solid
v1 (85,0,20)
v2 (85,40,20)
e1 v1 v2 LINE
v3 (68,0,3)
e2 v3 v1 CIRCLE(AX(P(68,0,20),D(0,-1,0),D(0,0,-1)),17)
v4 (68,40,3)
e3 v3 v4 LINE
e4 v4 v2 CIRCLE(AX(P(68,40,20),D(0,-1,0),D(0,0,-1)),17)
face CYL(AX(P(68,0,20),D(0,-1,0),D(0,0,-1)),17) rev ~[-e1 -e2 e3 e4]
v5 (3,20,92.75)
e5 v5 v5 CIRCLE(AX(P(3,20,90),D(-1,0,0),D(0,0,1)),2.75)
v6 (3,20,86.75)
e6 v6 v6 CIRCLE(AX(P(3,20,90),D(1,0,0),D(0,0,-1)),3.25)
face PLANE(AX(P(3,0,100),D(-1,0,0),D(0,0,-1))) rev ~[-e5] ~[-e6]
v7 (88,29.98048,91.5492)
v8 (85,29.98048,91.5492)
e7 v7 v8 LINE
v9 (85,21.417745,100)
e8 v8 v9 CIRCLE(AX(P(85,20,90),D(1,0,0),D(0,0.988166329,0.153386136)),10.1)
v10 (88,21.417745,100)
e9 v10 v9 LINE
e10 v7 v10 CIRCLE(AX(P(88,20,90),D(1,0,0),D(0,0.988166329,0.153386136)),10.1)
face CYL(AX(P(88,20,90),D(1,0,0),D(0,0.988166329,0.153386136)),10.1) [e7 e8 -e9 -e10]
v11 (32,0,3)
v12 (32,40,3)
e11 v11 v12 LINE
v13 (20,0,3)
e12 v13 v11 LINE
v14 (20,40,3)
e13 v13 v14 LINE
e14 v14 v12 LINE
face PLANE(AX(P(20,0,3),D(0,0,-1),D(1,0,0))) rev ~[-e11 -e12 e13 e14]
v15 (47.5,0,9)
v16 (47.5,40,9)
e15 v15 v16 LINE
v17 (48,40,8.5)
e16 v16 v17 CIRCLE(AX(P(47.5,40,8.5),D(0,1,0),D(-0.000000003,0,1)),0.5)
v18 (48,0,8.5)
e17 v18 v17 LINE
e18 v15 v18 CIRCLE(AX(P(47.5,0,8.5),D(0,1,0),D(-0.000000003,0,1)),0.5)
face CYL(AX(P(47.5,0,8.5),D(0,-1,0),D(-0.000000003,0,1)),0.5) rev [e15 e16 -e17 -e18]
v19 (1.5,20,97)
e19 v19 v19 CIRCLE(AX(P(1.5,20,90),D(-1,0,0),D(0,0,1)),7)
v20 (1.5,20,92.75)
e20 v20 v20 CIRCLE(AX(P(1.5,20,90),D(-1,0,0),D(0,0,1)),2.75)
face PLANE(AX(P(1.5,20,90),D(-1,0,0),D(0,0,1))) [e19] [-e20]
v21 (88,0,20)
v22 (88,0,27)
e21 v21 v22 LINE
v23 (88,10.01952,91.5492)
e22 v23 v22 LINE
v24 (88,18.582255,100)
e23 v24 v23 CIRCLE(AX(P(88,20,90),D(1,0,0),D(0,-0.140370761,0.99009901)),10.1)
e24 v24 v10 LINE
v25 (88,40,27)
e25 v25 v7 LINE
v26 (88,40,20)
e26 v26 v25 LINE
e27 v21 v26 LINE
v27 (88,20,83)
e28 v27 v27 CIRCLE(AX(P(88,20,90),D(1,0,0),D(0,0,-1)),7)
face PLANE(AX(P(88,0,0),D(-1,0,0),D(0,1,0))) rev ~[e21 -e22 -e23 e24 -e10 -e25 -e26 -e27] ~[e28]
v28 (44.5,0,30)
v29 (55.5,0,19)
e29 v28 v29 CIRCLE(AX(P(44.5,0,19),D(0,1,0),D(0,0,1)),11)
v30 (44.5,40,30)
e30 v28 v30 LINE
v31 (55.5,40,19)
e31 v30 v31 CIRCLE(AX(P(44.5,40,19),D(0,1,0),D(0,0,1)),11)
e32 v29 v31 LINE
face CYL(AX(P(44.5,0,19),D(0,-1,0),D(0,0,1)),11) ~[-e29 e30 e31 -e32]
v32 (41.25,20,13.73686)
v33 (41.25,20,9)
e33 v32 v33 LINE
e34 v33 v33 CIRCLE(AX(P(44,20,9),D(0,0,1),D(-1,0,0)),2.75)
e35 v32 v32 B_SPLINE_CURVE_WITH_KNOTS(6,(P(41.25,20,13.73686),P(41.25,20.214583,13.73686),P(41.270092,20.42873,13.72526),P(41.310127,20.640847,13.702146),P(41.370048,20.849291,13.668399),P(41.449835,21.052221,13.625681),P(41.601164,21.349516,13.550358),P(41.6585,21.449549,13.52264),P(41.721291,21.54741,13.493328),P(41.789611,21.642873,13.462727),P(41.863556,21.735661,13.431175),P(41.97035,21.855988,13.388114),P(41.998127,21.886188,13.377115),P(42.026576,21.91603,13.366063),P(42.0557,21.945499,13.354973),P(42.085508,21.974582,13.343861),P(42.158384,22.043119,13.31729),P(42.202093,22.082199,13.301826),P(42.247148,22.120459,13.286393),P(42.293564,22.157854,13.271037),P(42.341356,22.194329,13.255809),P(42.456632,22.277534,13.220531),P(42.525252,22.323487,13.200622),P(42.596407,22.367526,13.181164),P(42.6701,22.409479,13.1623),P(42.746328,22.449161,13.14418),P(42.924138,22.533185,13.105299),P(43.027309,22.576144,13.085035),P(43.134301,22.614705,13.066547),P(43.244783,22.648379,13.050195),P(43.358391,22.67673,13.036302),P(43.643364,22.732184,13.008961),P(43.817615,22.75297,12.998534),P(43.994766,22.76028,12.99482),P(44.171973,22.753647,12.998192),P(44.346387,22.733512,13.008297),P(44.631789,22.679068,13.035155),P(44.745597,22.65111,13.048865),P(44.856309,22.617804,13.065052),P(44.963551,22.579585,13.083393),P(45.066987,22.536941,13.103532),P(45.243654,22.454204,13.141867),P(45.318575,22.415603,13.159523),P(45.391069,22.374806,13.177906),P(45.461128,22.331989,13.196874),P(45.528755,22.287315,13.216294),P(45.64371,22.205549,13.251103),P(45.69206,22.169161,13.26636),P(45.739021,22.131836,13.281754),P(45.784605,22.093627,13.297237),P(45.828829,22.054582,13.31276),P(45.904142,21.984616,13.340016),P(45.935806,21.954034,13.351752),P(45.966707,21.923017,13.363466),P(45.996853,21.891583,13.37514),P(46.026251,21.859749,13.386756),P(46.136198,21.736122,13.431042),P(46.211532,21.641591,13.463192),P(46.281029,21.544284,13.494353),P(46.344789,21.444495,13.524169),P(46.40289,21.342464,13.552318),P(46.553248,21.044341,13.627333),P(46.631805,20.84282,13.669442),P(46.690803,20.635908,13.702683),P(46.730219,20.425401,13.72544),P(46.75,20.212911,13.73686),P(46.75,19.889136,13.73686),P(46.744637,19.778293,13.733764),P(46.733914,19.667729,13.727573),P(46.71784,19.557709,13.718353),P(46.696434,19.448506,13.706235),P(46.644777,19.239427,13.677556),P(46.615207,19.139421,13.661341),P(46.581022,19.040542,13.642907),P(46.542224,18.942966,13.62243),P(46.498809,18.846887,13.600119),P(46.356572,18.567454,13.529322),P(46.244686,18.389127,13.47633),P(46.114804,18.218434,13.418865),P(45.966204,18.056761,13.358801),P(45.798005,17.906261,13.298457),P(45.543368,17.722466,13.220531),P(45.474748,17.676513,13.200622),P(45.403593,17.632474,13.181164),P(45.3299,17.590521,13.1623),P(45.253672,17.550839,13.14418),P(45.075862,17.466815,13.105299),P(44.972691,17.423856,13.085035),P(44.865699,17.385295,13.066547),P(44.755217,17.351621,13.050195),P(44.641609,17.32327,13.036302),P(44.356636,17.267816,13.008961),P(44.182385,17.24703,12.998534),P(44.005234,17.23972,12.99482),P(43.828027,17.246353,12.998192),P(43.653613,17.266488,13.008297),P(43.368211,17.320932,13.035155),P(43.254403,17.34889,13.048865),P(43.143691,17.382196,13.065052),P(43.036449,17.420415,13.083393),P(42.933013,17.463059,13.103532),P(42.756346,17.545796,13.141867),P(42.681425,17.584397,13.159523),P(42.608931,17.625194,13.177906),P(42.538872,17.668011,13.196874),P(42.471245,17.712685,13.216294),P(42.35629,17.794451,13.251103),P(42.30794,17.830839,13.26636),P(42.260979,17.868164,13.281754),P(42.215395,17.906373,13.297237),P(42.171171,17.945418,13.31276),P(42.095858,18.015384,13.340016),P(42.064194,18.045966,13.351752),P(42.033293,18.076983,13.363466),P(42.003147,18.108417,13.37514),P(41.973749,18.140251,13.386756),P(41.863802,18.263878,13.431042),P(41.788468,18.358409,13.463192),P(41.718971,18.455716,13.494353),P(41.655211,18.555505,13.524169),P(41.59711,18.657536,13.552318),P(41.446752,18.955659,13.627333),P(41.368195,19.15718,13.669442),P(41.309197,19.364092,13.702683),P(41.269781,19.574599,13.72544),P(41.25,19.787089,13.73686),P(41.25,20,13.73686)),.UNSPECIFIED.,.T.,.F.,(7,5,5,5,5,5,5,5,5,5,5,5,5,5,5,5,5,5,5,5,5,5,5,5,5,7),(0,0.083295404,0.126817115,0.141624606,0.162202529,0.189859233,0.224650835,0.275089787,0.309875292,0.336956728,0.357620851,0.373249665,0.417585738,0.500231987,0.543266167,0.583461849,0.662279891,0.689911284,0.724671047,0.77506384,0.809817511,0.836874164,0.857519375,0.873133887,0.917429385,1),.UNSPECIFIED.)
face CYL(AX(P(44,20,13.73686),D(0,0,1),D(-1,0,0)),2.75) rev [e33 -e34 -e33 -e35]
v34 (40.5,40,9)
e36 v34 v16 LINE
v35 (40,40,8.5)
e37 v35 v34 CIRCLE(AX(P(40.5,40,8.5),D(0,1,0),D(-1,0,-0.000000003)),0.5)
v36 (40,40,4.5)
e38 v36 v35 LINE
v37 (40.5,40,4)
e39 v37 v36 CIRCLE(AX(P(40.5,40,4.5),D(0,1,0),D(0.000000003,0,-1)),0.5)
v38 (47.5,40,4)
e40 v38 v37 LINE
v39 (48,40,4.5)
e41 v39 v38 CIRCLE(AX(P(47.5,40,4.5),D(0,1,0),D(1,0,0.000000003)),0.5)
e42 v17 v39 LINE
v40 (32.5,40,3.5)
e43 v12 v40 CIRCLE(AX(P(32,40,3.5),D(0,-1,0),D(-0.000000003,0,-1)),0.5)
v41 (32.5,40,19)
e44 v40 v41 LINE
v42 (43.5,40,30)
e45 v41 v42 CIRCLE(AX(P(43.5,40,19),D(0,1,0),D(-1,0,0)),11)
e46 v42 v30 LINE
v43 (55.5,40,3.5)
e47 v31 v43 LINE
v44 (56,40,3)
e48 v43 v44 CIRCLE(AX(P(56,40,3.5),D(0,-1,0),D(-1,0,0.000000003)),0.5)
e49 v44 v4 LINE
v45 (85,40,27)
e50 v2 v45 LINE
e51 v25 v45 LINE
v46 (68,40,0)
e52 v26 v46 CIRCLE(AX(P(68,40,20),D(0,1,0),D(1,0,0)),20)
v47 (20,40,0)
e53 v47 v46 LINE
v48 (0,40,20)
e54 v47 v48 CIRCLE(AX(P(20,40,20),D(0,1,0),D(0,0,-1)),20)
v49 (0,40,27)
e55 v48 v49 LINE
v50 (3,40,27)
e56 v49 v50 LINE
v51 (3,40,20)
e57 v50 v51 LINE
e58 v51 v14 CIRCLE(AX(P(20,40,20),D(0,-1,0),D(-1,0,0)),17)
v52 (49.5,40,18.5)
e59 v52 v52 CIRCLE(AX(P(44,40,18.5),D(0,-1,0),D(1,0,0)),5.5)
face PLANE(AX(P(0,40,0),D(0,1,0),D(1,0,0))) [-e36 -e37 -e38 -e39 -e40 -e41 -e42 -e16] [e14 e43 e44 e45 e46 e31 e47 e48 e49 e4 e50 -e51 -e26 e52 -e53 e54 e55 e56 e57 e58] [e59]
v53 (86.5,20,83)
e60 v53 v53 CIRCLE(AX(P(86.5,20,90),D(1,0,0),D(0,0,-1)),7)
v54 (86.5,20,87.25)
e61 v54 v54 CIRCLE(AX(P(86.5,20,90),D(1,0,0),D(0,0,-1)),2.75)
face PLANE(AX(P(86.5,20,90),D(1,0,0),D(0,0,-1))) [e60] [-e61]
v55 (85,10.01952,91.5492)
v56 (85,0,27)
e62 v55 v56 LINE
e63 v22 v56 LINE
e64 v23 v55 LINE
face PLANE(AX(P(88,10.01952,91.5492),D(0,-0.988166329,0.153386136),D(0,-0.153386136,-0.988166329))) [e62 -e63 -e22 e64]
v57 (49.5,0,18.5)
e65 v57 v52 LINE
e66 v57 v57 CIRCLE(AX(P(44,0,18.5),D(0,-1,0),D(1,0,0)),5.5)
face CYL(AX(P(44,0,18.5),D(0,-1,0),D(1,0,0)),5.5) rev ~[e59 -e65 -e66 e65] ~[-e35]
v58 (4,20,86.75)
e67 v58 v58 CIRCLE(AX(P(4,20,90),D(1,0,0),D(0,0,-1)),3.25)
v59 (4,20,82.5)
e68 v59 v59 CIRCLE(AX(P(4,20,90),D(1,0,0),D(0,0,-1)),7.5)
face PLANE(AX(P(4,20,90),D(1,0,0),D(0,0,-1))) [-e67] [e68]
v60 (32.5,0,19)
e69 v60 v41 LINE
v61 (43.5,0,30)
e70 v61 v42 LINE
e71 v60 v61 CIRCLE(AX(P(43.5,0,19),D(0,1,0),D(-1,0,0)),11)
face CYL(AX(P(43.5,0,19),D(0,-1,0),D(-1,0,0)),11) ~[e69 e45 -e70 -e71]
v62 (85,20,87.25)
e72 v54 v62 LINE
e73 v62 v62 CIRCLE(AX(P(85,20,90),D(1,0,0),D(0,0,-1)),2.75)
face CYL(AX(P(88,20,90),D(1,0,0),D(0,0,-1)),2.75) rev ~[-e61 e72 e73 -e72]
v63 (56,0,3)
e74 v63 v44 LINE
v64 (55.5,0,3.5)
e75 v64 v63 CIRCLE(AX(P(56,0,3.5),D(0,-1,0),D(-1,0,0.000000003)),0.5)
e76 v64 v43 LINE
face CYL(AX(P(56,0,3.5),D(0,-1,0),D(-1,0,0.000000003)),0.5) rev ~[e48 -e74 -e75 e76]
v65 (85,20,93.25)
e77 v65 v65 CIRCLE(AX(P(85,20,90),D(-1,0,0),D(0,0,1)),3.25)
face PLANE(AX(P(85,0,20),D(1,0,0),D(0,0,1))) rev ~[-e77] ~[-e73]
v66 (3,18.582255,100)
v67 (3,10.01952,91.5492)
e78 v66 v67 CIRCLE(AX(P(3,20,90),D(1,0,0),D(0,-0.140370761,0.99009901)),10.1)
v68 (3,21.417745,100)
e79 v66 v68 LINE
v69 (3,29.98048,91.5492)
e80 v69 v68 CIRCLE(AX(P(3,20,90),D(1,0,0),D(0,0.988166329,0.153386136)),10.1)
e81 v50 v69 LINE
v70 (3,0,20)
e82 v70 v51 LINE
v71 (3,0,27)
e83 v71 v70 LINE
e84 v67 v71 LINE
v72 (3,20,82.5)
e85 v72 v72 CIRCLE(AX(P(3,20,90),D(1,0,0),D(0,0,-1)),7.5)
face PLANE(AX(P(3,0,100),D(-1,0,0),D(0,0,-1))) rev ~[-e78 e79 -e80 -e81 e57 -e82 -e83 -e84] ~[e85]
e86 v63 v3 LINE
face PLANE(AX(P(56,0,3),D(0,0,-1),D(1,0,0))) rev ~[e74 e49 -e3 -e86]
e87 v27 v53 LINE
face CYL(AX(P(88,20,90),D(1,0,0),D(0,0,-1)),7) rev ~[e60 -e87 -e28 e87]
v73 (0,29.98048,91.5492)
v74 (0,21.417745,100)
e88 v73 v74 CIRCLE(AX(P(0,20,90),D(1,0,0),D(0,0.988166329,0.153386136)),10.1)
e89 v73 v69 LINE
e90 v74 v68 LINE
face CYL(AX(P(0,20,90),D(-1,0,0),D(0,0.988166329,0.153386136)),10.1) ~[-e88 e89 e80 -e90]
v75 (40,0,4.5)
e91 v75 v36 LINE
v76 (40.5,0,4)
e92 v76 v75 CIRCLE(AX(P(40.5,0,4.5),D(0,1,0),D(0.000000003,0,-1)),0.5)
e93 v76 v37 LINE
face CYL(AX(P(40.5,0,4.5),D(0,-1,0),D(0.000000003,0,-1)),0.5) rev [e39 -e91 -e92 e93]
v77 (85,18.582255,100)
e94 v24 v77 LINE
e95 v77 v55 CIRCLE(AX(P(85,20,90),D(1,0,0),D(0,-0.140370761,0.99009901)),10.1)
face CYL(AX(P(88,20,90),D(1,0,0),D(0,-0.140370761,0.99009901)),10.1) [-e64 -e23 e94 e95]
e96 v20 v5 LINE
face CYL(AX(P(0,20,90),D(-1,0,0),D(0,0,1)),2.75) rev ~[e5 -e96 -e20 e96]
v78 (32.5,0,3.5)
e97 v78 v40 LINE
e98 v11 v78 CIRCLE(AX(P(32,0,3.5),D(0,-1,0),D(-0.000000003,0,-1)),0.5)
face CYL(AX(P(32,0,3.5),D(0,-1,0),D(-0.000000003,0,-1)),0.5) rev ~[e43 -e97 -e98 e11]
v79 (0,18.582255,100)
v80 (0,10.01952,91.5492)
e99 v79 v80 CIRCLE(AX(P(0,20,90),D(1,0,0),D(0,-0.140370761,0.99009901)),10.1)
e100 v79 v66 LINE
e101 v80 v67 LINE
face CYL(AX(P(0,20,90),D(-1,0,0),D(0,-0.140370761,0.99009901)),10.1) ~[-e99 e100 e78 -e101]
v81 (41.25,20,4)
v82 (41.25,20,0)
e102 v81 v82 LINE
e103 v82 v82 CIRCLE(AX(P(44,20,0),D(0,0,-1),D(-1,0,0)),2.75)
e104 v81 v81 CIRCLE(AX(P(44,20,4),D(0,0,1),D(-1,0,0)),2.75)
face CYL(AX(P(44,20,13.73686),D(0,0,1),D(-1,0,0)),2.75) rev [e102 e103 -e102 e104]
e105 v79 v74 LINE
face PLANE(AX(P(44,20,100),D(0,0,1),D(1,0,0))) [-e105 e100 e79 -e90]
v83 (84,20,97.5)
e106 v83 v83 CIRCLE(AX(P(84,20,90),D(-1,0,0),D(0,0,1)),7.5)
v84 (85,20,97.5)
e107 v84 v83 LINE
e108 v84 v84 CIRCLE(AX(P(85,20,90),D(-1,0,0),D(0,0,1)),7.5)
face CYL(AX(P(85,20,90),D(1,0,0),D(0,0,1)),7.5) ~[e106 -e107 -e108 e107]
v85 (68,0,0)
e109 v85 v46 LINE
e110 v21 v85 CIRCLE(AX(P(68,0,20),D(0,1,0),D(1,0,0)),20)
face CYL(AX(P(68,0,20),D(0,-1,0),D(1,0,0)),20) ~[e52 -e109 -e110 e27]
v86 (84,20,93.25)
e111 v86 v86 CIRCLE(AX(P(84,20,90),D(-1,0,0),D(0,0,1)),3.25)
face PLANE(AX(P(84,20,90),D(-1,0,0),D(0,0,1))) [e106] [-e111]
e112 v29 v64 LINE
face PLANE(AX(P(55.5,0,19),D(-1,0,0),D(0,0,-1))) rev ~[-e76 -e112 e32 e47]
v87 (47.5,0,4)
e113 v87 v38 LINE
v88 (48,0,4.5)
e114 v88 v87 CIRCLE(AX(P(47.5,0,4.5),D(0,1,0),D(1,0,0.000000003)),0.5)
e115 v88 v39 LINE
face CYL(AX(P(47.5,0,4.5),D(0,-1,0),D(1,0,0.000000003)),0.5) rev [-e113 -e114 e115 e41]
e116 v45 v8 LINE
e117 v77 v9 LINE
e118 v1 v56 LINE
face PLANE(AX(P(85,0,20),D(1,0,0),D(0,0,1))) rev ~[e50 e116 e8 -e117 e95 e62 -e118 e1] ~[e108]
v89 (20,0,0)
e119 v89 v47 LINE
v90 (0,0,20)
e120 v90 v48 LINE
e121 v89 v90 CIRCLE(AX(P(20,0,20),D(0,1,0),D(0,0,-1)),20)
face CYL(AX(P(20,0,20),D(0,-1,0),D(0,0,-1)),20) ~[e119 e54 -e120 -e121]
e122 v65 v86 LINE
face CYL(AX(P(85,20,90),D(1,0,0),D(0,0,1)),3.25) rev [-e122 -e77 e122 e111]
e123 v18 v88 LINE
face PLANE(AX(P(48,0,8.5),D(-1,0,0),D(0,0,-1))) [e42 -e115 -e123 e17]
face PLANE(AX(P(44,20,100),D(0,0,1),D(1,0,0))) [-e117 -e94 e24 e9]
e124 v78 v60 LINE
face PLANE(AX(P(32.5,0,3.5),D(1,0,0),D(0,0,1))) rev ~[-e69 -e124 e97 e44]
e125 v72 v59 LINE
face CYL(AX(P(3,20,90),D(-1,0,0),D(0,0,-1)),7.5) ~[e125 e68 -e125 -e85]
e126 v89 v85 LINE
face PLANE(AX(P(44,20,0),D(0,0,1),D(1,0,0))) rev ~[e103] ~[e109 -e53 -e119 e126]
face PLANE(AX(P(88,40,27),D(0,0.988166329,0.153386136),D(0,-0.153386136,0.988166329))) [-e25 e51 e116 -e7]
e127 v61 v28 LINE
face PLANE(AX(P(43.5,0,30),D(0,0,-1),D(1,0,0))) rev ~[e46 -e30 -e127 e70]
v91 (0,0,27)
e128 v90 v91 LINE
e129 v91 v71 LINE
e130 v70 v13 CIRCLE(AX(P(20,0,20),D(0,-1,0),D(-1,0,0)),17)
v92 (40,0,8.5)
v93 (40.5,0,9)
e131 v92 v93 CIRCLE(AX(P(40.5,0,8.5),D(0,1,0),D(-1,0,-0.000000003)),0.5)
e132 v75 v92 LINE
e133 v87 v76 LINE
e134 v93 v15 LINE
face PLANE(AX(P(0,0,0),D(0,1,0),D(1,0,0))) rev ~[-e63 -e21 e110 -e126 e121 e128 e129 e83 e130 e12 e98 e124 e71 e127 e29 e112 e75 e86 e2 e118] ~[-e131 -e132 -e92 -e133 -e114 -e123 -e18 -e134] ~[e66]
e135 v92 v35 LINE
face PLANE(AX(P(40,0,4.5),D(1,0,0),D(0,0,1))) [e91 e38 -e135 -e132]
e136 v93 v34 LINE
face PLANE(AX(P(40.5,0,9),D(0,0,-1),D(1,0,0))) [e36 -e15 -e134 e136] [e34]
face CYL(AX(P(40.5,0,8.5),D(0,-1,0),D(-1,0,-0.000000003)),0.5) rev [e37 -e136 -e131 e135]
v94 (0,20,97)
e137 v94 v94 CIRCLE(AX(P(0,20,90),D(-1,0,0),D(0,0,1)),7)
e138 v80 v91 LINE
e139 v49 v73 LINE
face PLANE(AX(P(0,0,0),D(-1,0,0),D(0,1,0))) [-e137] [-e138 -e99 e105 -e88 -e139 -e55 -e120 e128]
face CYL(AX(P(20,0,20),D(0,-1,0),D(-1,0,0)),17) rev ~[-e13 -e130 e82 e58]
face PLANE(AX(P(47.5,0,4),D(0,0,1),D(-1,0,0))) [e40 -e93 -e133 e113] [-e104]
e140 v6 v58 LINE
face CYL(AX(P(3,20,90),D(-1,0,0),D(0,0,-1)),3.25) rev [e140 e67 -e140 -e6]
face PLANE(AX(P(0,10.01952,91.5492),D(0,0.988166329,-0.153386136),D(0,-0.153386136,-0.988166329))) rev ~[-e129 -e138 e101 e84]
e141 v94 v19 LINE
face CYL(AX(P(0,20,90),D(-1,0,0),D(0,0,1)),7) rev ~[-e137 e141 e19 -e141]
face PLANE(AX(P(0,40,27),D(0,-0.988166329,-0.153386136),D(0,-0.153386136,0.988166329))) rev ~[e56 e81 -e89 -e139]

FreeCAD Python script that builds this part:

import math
import FreeCAD as App
import Part
import Sketcher

V = App.Vector
Q = App.Units.Quantity


def add_polygon(sketch, points):
    """Adds a closed chain of lines whose ends are joined by coincident constraints."""
    first, n = sketch.GeometryCount, len(points)
    for a, b in zip(points, points[1:] + points[:1]):
        sketch.addGeometry(Part.LineSegment(App.Vector(*a, 0), App.Vector(*b, 0)), False)
    for i in range(n):
        sketch.addConstraint(Sketcher.Constraint("Coincident", first + i, 2, first + (i + 1) % n, 1))

doc = App.newDocument("Part")
params = doc.addObject("Spreadsheet::Sheet", "Params")
for row, (alias, value) in enumerate([
    ("sketch1_width", "88 mm"),
    ("sketch1_height", "40 mm"),
    ("pad1_length", "100 mm"),
    ("sketch2_diameter", "11 mm"),
    ("sketch2_radius", "11 mm"),
    ("sketch2_radius2", "17 mm"),
    ("sketch2_radius3", "20 mm"),
    ("sketch2_radius4", "0.5 mm"),
    ("pocket1_length", "40 mm"),
    ("sketch3_diameter", "5.5 mm"),
    ("pocket2_length", "13.73686 mm"),
    ("sketch4_diameter", "5.5 mm"),
    ("sketch4_radius", "10.1 mm"),
    ("sketch4_height", "73 mm"),
    ("pocket3_length", "3 mm"),
    ("sketch5_diameter", "5.5 mm"),
    ("sketch5_radius", "10.1 mm"),
    ("sketch5_height", "73 mm"),
    ("pocket4_length", "3 mm"),
    ("sketch6_diameter", "15 mm"),
    ("sketch6_diameter2", "6.5 mm"),
    ("pad2_length", "1 mm"),
    ("sketch7_diameter", "15 mm"),
    ("sketch7_diameter2", "6.5 mm"),
    ("pad3_length", "1 mm"),
    ("sketch8_diameter", "14 mm"),
    ("pocket5_length", "1.5 mm"),
    ("sketch9_diameter", "14 mm"),
    ("pocket6_length", "1.5 mm"),
], start=1):
    params.set(f"A{row}", alias)
    params.set(f"B{row}", "=" + value)
    params.setAlias(f"B{row}", alias)

body = doc.addObject("PartDesign::Body", "Body")

# Sketch on XY plane
sketch1 = doc.addObject("Sketcher::SketchObject", "Sketch")
body.addObject(sketch1)
sketch1.AttachmentSupport = (doc.XY_Plane, [""])
sketch1.MapMode = "FlatFace"
add_polygon(sketch1, [(0, 40), (0, 0), (88, 0), (88, 40)])  # lines 0-3
sketch1.addConstraint(Sketcher.Constraint("Vertical", 0))
sketch1.addConstraint(Sketcher.Constraint("Horizontal", 1))
sketch1.addConstraint(Sketcher.Constraint("Vertical", 2))
sketch1.addConstraint(Sketcher.Constraint("Horizontal", 3))
sketch1.addConstraint(Sketcher.Constraint("Coincident", 0, 2, -1, 1))
sketch1.addConstraint(Sketcher.Constraint("DistanceX", 1, 1, 1, 2, Q("88 mm")))
sketch1.addConstraint(Sketcher.Constraint("DistanceY", 0, 2, 0, 1, Q("40 mm")))
sketch1.setExpression("Constraints[9]", "Params.sketch1_width")
sketch1.setExpression("Constraints[10]", "Params.sketch1_height")
pad1 = doc.addObject("PartDesign::Pad", "Pad")
body.addObject(pad1)
pad1.Profile = sketch1
pad1.setExpression("Length", "Params.pad1_length")

# Sketch on XZ plane
sketch2 = doc.addObject("Sketcher::SketchObject", "Sketch001")
body.addObject(sketch2)
sketch2.AttachmentSupport = (doc.XZ_Plane, [""])
sketch2.MapMode = "FlatFace"
sketch2.addGeometry(Part.Circle(V(44, 18.5, 0), V(0, 0, 1), 5.5), False)
sketch2.addGeometry(Part.LineSegment(V(20, 3, 0), V(32, 3, 0)), False)
sketch2.addGeometry(Part.ArcOfCircle(Part.Circle(V(32, 3.5, 0), V(0, 0, 1), 0.5), math.radians(-90), math.radians(0)), False)
sketch2.addGeometry(Part.LineSegment(V(32.5, 3.5, 0), V(32.5, 19, 0)), False)
sketch2.addGeometry(Part.ArcOfCircle(Part.Circle(V(43.5, 19, 0), V(0, 0, 1), 11), math.radians(90), math.radians(180)), False)
sketch2.addGeometry(Part.LineSegment(V(43.5, 30, 0), V(44.5, 30, 0)), False)
sketch2.addGeometry(Part.ArcOfCircle(Part.Circle(V(44.5, 19, 0), V(0, 0, 1), 11), math.radians(0), math.radians(90)), False)
sketch2.addGeometry(Part.LineSegment(V(55.5, 19, 0), V(55.5, 3.5, 0)), False)
sketch2.addGeometry(Part.ArcOfCircle(Part.Circle(V(56, 3.5, 0), V(0, 0, 1), 0.5), math.radians(180), math.radians(270)), False)
sketch2.addGeometry(Part.LineSegment(V(56, 3, 0), V(68, 3, 0)), False)
sketch2.addGeometry(Part.ArcOfCircle(Part.Circle(V(68, 20, 0), V(0, 0, 1), 17), math.radians(-90), math.radians(0)), False)
sketch2.addGeometry(Part.LineSegment(V(85, 20, 0), V(85, 100, 0)), False)
sketch2.addGeometry(Part.LineSegment(V(85, 100, 0), V(3, 100, 0)), False)
sketch2.addGeometry(Part.LineSegment(V(3, 100, 0), V(3, 20, 0)), False)
sketch2.addGeometry(Part.ArcOfCircle(Part.Circle(V(20, 20, 0), V(0, 0, 1), 17), math.radians(-180), math.radians(-90)), False)
sketch2.addGeometry(Part.LineSegment(V(0, 20, 0), V(0, 0, 0)), False)
sketch2.addGeometry(Part.LineSegment(V(0, 0, 0), V(20, 0, 0)), False)
sketch2.addGeometry(Part.ArcOfCircle(Part.Circle(V(20, 20, 0), V(0, 0, 1), 20), math.radians(180), math.radians(270)), False)
sketch2.addGeometry(Part.LineSegment(V(68, 0, 0), V(88, 0, 0)), False)
sketch2.addGeometry(Part.LineSegment(V(88, 0, 0), V(88, 20, 0)), False)
sketch2.addGeometry(Part.ArcOfCircle(Part.Circle(V(68, 20, 0), V(0, 0, 1), 20), math.radians(-90), math.radians(0)), False)
sketch2.addGeometry(Part.LineSegment(V(47.5, 9, 0), V(40.5, 9, 0)), False)
sketch2.addGeometry(Part.ArcOfCircle(Part.Circle(V(40.5, 8.5, 0), V(0, 0, 1), 0.5), math.radians(90), math.radians(180)), False)
sketch2.addGeometry(Part.LineSegment(V(40, 8.5, 0), V(40, 4.5, 0)), False)
sketch2.addGeometry(Part.ArcOfCircle(Part.Circle(V(40.5, 4.5, 0), V(0, 0, 1), 0.5), math.radians(180), math.radians(270)), False)
sketch2.addGeometry(Part.LineSegment(V(40.5, 4, 0), V(47.5, 4, 0)), False)
sketch2.addGeometry(Part.ArcOfCircle(Part.Circle(V(47.5, 4.5, 0), V(0, 0, 1), 0.5), math.radians(-90), math.radians(0)), False)
sketch2.addGeometry(Part.LineSegment(V(48, 4.5, 0), V(48, 8.5, 0)), False)
sketch2.addGeometry(Part.ArcOfCircle(Part.Circle(V(47.5, 8.5, 0), V(0, 0, 1), 0.5), math.radians(0), math.radians(90)), False)
sketch2.addConstraint(Sketcher.Constraint("Tangent", 1, 2, 2, 1))
sketch2.addConstraint(Sketcher.Constraint("Tangent", 2, 2, 3, 1))
sketch2.addConstraint(Sketcher.Constraint("Tangent", 3, 2, 4, 2))
sketch2.addConstraint(Sketcher.Constraint("Tangent", 4, 1, 5, 1))
sketch2.addConstraint(Sketcher.Constraint("Tangent", 5, 2, 6, 2))
sketch2.addConstraint(Sketcher.Constraint("Tangent", 6, 1, 7, 1))
sketch2.addConstraint(Sketcher.Constraint("Tangent", 7, 2, 8, 1))
sketch2.addConstraint(Sketcher.Constraint("Tangent", 8, 2, 9, 1))
sketch2.addConstraint(Sketcher.Constraint("Tangent", 9, 2, 10, 1))
sketch2.addConstraint(Sketcher.Constraint("Tangent", 10, 2, 11, 1))
sketch2.addConstraint(Sketcher.Constraint("Coincident", 11, 2, 12, 1))
sketch2.addConstraint(Sketcher.Constraint("Coincident", 12, 2, 13, 1))
sketch2.addConstraint(Sketcher.Constraint("Tangent", 13, 2, 14, 1))
sketch2.addConstraint(Sketcher.Constraint("Tangent", 14, 2, 1, 1))
sketch2.addConstraint(Sketcher.Constraint("Coincident", 15, 2, 16, 1))
sketch2.addConstraint(Sketcher.Constraint("Tangent", 16, 2, 17, 2))
sketch2.addConstraint(Sketcher.Constraint("Tangent", 17, 1, 15, 1))
sketch2.addConstraint(Sketcher.Constraint("Coincident", 18, 2, 19, 1))
sketch2.addConstraint(Sketcher.Constraint("Tangent", 19, 2, 20, 2))
sketch2.addConstraint(Sketcher.Constraint("Tangent", 20, 1, 18, 1))
sketch2.addConstraint(Sketcher.Constraint("Tangent", 21, 2, 22, 1))
sketch2.addConstraint(Sketcher.Constraint("Tangent", 22, 2, 23, 1))
sketch2.addConstraint(Sketcher.Constraint("Tangent", 23, 2, 24, 1))
sketch2.addConstraint(Sketcher.Constraint("Tangent", 24, 2, 25, 1))
sketch2.addConstraint(Sketcher.Constraint("Tangent", 25, 2, 26, 1))
sketch2.addConstraint(Sketcher.Constraint("Tangent", 26, 2, 27, 1))
sketch2.addConstraint(Sketcher.Constraint("Tangent", 27, 2, 28, 1))
sketch2.addConstraint(Sketcher.Constraint("Tangent", 28, 2, 21, 1))
sketch2.addConstraint(Sketcher.Constraint("Horizontal", 1))
sketch2.addConstraint(Sketcher.Constraint("Vertical", 3))
sketch2.addConstraint(Sketcher.Constraint("Horizontal", 5))
sketch2.addConstraint(Sketcher.Constraint("Vertical", 7))
sketch2.addConstraint(Sketcher.Constraint("Horizontal", 9))
sketch2.addConstraint(Sketcher.Constraint("Vertical", 11))
sketch2.addConstraint(Sketcher.Constraint("Horizontal", 12))
sketch2.addConstraint(Sketcher.Constraint("Vertical", 13))
sketch2.addConstraint(Sketcher.Constraint("Vertical", 15))
sketch2.addConstraint(Sketcher.Constraint("Horizontal", 16))
sketch2.addConstraint(Sketcher.Constraint("Horizontal", 18))
sketch2.addConstraint(Sketcher.Constraint("Vertical", 19))
sketch2.addConstraint(Sketcher.Constraint("Horizontal", 21))
sketch2.addConstraint(Sketcher.Constraint("Vertical", 23))
sketch2.addConstraint(Sketcher.Constraint("Horizontal", 25))
sketch2.addConstraint(Sketcher.Constraint("Vertical", 27))
sketch2.addConstraint(Sketcher.Constraint("Coincident", 15, 2, -1, 1))
sketch2.addConstraint(Sketcher.Constraint("Coincident", 17, 3, 14, 3))
sketch2.addConstraint(Sketcher.Constraint("Coincident", 20, 3, 10, 3))
sketch2.addConstraint(Sketcher.Constraint("Equal", 4, 6))
sketch2.addConstraint(Sketcher.Constraint("Equal", 2, 8))
sketch2.addConstraint(Sketcher.Constraint("Equal", 10, 14))
sketch2.addConstraint(Sketcher.Constraint("Equal", 17, 20))
sketch2.addConstraint(Sketcher.Constraint("Equal", 8, 22))
sketch2.addConstraint(Sketcher.Constraint("Equal", 22, 24))
sketch2.addConstraint(Sketcher.Constraint("Equal", 24, 26))
sketch2.addConstraint(Sketcher.Constraint("Equal", 26, 28))
sketch2.addConstraint(Sketcher.Constraint("PointOnObject", 18, 2, -1))
sketch2.addConstraint(Sketcher.Constraint("Equal", 1, 9))
sketch2.addConstraint(Sketcher.Constraint("Diameter", 0, Q("11 mm")))
sketch2.addConstraint(Sketcher.Constraint("Radius", 4, Q("11 mm")))
sketch2.addConstraint(Sketcher.Constraint("Radius", 10, Q("17 mm")))
sketch2.addConstraint(Sketcher.Constraint("Radius", 17, Q("20 mm")))
sketch2.addConstraint(Sketcher.Constraint("Radius", 2, Q("0.5 mm")))
sketch2.addConstraint(Sketcher.Constraint("DistanceX", 1, 1, 1, 2, Q("12 mm")))
sketch2.addConstraint(Sketcher.Constraint("DistanceX", 5, 1, 5, 2, Q("1 mm")))
sketch2.addConstraint(Sketcher.Constraint("DistanceX", 21, 2, 21, 1, Q("7 mm")))
sketch2.addConstraint(Sketcher.Constraint("DistanceY", 11, 1, 11, 2, Q("80 mm")))
sketch2.addConstraint(Sketcher.Constraint("DistanceY", 23, 2, 23, 1, Q("4 mm")))
sketch2.addConstraint(Sketcher.Constraint("DistanceY", 3, 1, 3, 2, Q("15.5 mm")))
sketch2.addConstraint(Sketcher.Constraint("DistanceX", -1, 1, 0, 3, Q("44 mm")))
sketch2.addConstraint(Sketcher.Constraint("DistanceY", -1, 1, 21, 2, Q("9 mm")))
sketch2.addConstraint(Sketcher.Constraint("DistanceX", -1, 1, 22, 2, Q("40 mm")))
sketch2.addConstraint(Sketcher.Constraint("DistanceY", 2, 3, 0, 3, Q("15 mm")))
sketch2.setExpression("Constraints[57]", "Params.sketch2_diameter")
sketch2.setExpression("Constraints[58]", "Params.sketch2_radius")
sketch2.setExpression("Constraints[59]", "Params.sketch2_radius2")
sketch2.setExpression("Constraints[60]", "Params.sketch2_radius3")
sketch2.setExpression("Constraints[61]", "Params.sketch2_radius4")
pocket1 = doc.addObject("PartDesign::Pocket", "Pocket")
body.addObject(pocket1)
pocket1.Profile = sketch2
pocket1.setExpression("Length", "Params.pocket1_length")

# Sketch on XY plane
sketch3 = doc.addObject("Sketcher::SketchObject", "Sketch002")
body.addObject(sketch3)
sketch3.AttachmentSupport = (doc.XY_Plane, [""])
sketch3.MapMode = "FlatFace"
sketch3.AttachmentOffset = App.Placement(V(0, 0, 13.73686), App.Rotation())
sketch3.addGeometry(Part.Circle(V(44, 20, 0), V(0, 0, 1), 2.8), False)
sketch3.addConstraint(Sketcher.Constraint("Diameter", 0, Q("5.5 mm")))
sketch3.addConstraint(Sketcher.Constraint("DistanceX", -1, 1, 0, 3, Q("44 mm")))
sketch3.addConstraint(Sketcher.Constraint("DistanceY", -1, 1, 0, 3, Q("20 mm")))
sketch3.setExpression("Constraints[0]", "Params.sketch3_diameter")
pocket2 = doc.addObject("PartDesign::Pocket", "Pocket001")
body.addObject(pocket2)
pocket2.Profile = sketch3
pocket2.setExpression("Length", "Params.pocket2_length")

# Sketch on YZ plane
sketch4 = doc.addObject("Sketcher::SketchObject", "Sketch003")
body.addObject(sketch4)
sketch4.AttachmentSupport = (doc.YZ_Plane, [""])
sketch4.MapMode = "FlatFace"
sketch4.AttachmentOffset = App.Placement(V(0, 0, 88), App.Rotation())
sketch4.addGeometry(Part.Circle(V(20, 90, 0), V(0, 0, 1), 2.8), False)
sketch4.addGeometry(Part.LineSegment(V(0, 100, 0), V(0, 27, 0)), False)
sketch4.addGeometry(Part.LineSegment(V(0, 27, 0), V(10, 91.5, 0)), False)
sketch4.addGeometry(Part.ArcOfCircle(Part.Circle(V(20, 90, 0), V(0, 0, 1), 10.1), math.radians(98), math.radians(171)), False)
sketch4.addGeometry(Part.LineSegment(V(18.6, 100, 0), V(0, 100, 0)), False)
sketch4.addGeometry(Part.LineSegment(V(40, 27, 0), V(40, 100, 0)), False)
sketch4.addGeometry(Part.LineSegment(V(40, 100, 0), V(21.4, 100, 0)), False)
sketch4.addGeometry(Part.ArcOfCircle(Part.Circle(V(20, 90, 0), V(0, 0, 1), 10.1), math.radians(9), math.radians(82)), False)
sketch4.addGeometry(Part.LineSegment(V(30, 91.5, 0), V(40, 27, 0)), False)
sketch4.addConstraint(Sketcher.Constraint("Coincident", 1, 2, 2, 1))
sketch4.addConstraint(Sketcher.Constraint("Tangent", 2, 2, 3, 2))
sketch4.addConstraint(Sketcher.Constraint("Coincident", 3, 1, 4, 1))
sketch4.addConstraint(Sketcher.Constraint("Coincident", 4, 2, 1, 1))
sketch4.addConstraint(Sketcher.Constraint("Coincident", 5, 2, 6, 1))
sketch4.addConstraint(Sketcher.Constraint("Coincident", 6, 2, 7, 2))
sketch4.addConstraint(Sketcher.Constraint("Tangent", 7, 1, 8, 1))
sketch4.addConstraint(Sketcher.Constraint("Coincident", 8, 2, 5, 1))
sketch4.addConstraint(Sketcher.Constraint("Vertical", 1))
sketch4.addConstraint(Sketcher.Constraint("Horizontal", 4))
sketch4.addConstraint(Sketcher.Constraint("Vertical", 5))
sketch4.addConstraint(Sketcher.Constraint("Horizontal", 6))
sketch4.addConstraint(Sketcher.Constraint("Coincident", 3, 3, 0, 3))
sketch4.addConstraint(Sketcher.Constraint("Coincident", 7, 3, 0, 3))
sketch4.addConstraint(Sketcher.Constraint("Equal", 3, 7))
sketch4.addConstraint(Sketcher.Constraint("PointOnObject", 1, 2, -2))
sketch4.addConstraint(Sketcher.Constraint("Horizontal", 4, 2, 5, 2))
sketch4.addConstraint(Sketcher.Constraint("Horizontal", 2, 2, 7, 1))
sketch4.addConstraint(Sketcher.Constraint("Horizontal", 1, 2, 8, 2))
sketch4.addConstraint(Sketcher.Constraint("Diameter", 0, Q("5.5 mm")))
sketch4.addConstraint(Sketcher.Constraint("Radius", 3, Q("10.1 mm")))
sketch4.addConstraint(Sketcher.Constraint("DistanceY", 1, 2, 1, 1, Q("73 mm")))
sketch4.addConstraint(Sketcher.Constraint("DistanceX", -1, 1, 0, 3, Q("20 mm")))
sketch4.addConstraint(Sketcher.Constraint("DistanceY", -1, 1, 0, 3, Q("90 mm")))
sketch4.addConstraint(Sketcher.Constraint("DistanceY", -1, 1, 1, 2, Q("27 mm")))
sketch4.setExpression("Constraints[19]", "Params.sketch4_diameter")
sketch4.setExpression("Constraints[20]", "Params.sketch4_radius")
sketch4.setExpression("Constraints[21]", "Params.sketch4_height")
pocket3 = doc.addObject("PartDesign::Pocket", "Pocket002")
body.addObject(pocket3)
pocket3.Profile = sketch4
pocket3.setExpression("Length", "Params.pocket3_length")

# Sketch on YZ plane
sketch5 = doc.addObject("Sketcher::SketchObject", "Sketch004")
body.addObject(sketch5)
sketch5.AttachmentSupport = (doc.YZ_Plane, [""])
sketch5.MapMode = "FlatFace"
sketch5.addGeometry(Part.Circle(V(20, 90, 0), V(0, 0, 1), 2.8), False)
sketch5.addGeometry(Part.LineSegment(V(0, 100, 0), V(18.6, 100, 0)), False)
sketch5.addGeometry(Part.ArcOfCircle(Part.Circle(V(20, 90, 0), V(0, 0, 1), 10.1), math.radians(98), math.radians(171)), False)
sketch5.addGeometry(Part.LineSegment(V(10, 91.5, 0), V(0, 27, 0)), False)
sketch5.addGeometry(Part.LineSegment(V(0, 27, 0), V(0, 100, 0)), False)
sketch5.addGeometry(Part.LineSegment(V(21.4, 100, 0), V(40, 100, 0)), False)
sketch5.addGeometry(Part.LineSegment(V(40, 100, 0), V(40, 27, 0)), False)
sketch5.addGeometry(Part.LineSegment(V(40, 27, 0), V(30, 91.5, 0)), False)
sketch5.addGeometry(Part.ArcOfCircle(Part.Circle(V(20, 90, 0), V(0, 0, 1), 10.1), math.radians(9), math.radians(82)), False)
sketch5.addConstraint(Sketcher.Constraint("Coincident", 1, 2, 2, 1))
sketch5.addConstraint(Sketcher.Constraint("Tangent", 2, 2, 3, 1))
sketch5.addConstraint(Sketcher.Constraint("Coincident", 3, 2, 4, 1))
sketch5.addConstraint(Sketcher.Constraint("Coincident", 4, 2, 1, 1))
sketch5.addConstraint(Sketcher.Constraint("Coincident", 5, 2, 6, 1))
sketch5.addConstraint(Sketcher.Constraint("Coincident", 6, 2, 7, 1))
sketch5.addConstraint(Sketcher.Constraint("Tangent", 7, 2, 8, 1))
sketch5.addConstraint(Sketcher.Constraint("Coincident", 8, 2, 5, 1))
sketch5.addConstraint(Sketcher.Constraint("Horizontal", 1))
sketch5.addConstraint(Sketcher.Constraint("Vertical", 4))
sketch5.addConstraint(Sketcher.Constraint("Horizontal", 5))
sketch5.addConstraint(Sketcher.Constraint("Vertical", 6))
sketch5.addConstraint(Sketcher.Constraint("Coincident", 2, 3, 0, 3))
sketch5.addConstraint(Sketcher.Constraint("Coincident", 8, 3, 0, 3))
sketch5.addConstraint(Sketcher.Constraint("Equal", 2, 8))
sketch5.addConstraint(Sketcher.Constraint("PointOnObject", 3, 2, -2))
sketch5.addConstraint(Sketcher.Constraint("Horizontal", 4, 2, 5, 2))
sketch5.addConstraint(Sketcher.Constraint("Horizontal", 3, 2, 6, 2))
sketch5.addConstraint(Sketcher.Constraint("Horizontal", 2, 2, 7, 2))
sketch5.addConstraint(Sketcher.Constraint("Diameter", 0, Q("5.5 mm")))
sketch5.addConstraint(Sketcher.Constraint("Radius", 2, Q("10.1 mm")))
sketch5.addConstraint(Sketcher.Constraint("DistanceY", 4, 1, 4, 2, Q("73 mm")))
sketch5.addConstraint(Sketcher.Constraint("DistanceX", -1, 1, 0, 3, Q("20 mm")))
sketch5.addConstraint(Sketcher.Constraint("DistanceY", -1, 1, 0, 3, Q("90 mm")))
sketch5.addConstraint(Sketcher.Constraint("DistanceY", -1, 1, 1, 2, Q("100 mm")))
sketch5.setExpression("Constraints[19]", "Params.sketch5_diameter")
sketch5.setExpression("Constraints[20]", "Params.sketch5_radius")
sketch5.setExpression("Constraints[21]", "Params.sketch5_height")
pocket4 = doc.addObject("PartDesign::Pocket", "Pocket003")
body.addObject(pocket4)
pocket4.Profile = sketch5
pocket4.setExpression("Length", "Params.pocket4_length")
pocket4.Reversed = True

# Sketch on YZ plane
sketch6 = doc.addObject("Sketcher::SketchObject", "Sketch005")
body.addObject(sketch6)
sketch6.AttachmentSupport = (doc.YZ_Plane, [""])
sketch6.MapMode = "FlatFace"
sketch6.AttachmentOffset = App.Placement(V(0, 0, 3), App.Rotation())
sketch6.addGeometry(Part.Circle(V(20, 90, 0), V(0, 0, 1), 7.5), False)
sketch6.addGeometry(Part.Circle(V(20, 90, 0), V(0, 0, 1), 3.2), False)
sketch6.addConstraint(Sketcher.Constraint("Coincident", 1, 3, 0, 3))
sketch6.addConstraint(Sketcher.Constraint("Diameter", 0, Q("15 mm")))
sketch6.addConstraint(Sketcher.Constraint("Diameter", 1, Q("6.5 mm")))
sketch6.addConstraint(Sketcher.Constraint("DistanceX", -1, 1, 0, 3, Q("20 mm")))
sketch6.addConstraint(Sketcher.Constraint("DistanceY", -1, 1, 0, 3, Q("90 mm")))
sketch6.setExpression("Constraints[1]", "Params.sketch6_diameter")
sketch6.setExpression("Constraints[2]", "Params.sketch6_diameter2")
pad2 = doc.addObject("PartDesign::Pad", "Pad001")
body.addObject(pad2)
pad2.Profile = sketch6
pad2.setExpression("Length", "Params.pad2_length")

# Sketch on YZ plane
sketch7 = doc.addObject("Sketcher::SketchObject", "Sketch006")
body.addObject(sketch7)
sketch7.AttachmentSupport = (doc.YZ_Plane, [""])
sketch7.MapMode = "FlatFace"
sketch7.AttachmentOffset = App.Placement(V(0, 0, 85), App.Rotation())
sketch7.addGeometry(Part.Circle(V(20, 90, 0), V(0, 0, 1), 7.5), False)
sketch7.addGeometry(Part.Circle(V(20, 90, 0), V(0, 0, 1), 3.2), False)
sketch7.addConstraint(Sketcher.Constraint("Coincident", 1, 3, 0, 3))
sketch7.addConstraint(Sketcher.Constraint("Diameter", 0, Q("15 mm")))
sketch7.addConstraint(Sketcher.Constraint("Diameter", 1, Q("6.5 mm")))
sketch7.addConstraint(Sketcher.Constraint("DistanceX", -1, 1, 0, 3, Q("20 mm")))
sketch7.addConstraint(Sketcher.Constraint("DistanceY", -1, 1, 0, 3, Q("90 mm")))
sketch7.setExpression("Constraints[1]", "Params.sketch7_diameter")
sketch7.setExpression("Constraints[2]", "Params.sketch7_diameter2")
pad3 = doc.addObject("PartDesign::Pad", "Pad002")
body.addObject(pad3)
pad3.Profile = sketch7
pad3.setExpression("Length", "Params.pad3_length")
pad3.Reversed = True

# Sketch on YZ plane
sketch8 = doc.addObject("Sketcher::SketchObject", "Sketch007")
body.addObject(sketch8)
sketch8.AttachmentSupport = (doc.YZ_Plane, [""])
sketch8.MapMode = "FlatFace"
sketch8.AttachmentOffset = App.Placement(V(0, 0, 88), App.Rotation())
sketch8.addGeometry(Part.Circle(V(20, 90, 0), V(0, 0, 1), 7), False)
sketch8.addConstraint(Sketcher.Constraint("Diameter", 0, Q("14 mm")))
sketch8.addConstraint(Sketcher.Constraint("DistanceX", -1, 1, 0, 3, Q("20 mm")))
sketch8.addConstraint(Sketcher.Constraint("DistanceY", -1, 1, 0, 3, Q("90 mm")))
sketch8.setExpression("Constraints[0]", "Params.sketch8_diameter")
pocket5 = doc.addObject("PartDesign::Pocket", "Pocket004")
body.addObject(pocket5)
pocket5.Profile = sketch8
pocket5.setExpression("Length", "Params.pocket5_length")

# Sketch on YZ plane
sketch9 = doc.addObject("Sketcher::SketchObject", "Sketch008")
body.addObject(sketch9)
sketch9.AttachmentSupport = (doc.YZ_Plane, [""])
sketch9.MapMode = "FlatFace"
sketch9.addGeometry(Part.Circle(V(20, 90, 0), V(0, 0, 1), 7), False)
sketch9.addConstraint(Sketcher.Constraint("Diameter", 0, Q("14 mm")))
sketch9.addConstraint(Sketcher.Constraint("DistanceX", -1, 1, 0, 3, Q("20 mm")))
sketch9.addConstraint(Sketcher.Constraint("DistanceY", -1, 1, 0, 3, Q("90 mm")))
sketch9.setExpression("Constraints[0]", "Params.sketch9_diameter")
pocket6 = doc.addObject("PartDesign::Pocket", "Pocket005")
body.addObject(pocket6)
pocket6.Profile = sketch9
pocket6.setExpression("Length", "Params.pocket6_length")
pocket6.Reversed = True

doc.recompute()
